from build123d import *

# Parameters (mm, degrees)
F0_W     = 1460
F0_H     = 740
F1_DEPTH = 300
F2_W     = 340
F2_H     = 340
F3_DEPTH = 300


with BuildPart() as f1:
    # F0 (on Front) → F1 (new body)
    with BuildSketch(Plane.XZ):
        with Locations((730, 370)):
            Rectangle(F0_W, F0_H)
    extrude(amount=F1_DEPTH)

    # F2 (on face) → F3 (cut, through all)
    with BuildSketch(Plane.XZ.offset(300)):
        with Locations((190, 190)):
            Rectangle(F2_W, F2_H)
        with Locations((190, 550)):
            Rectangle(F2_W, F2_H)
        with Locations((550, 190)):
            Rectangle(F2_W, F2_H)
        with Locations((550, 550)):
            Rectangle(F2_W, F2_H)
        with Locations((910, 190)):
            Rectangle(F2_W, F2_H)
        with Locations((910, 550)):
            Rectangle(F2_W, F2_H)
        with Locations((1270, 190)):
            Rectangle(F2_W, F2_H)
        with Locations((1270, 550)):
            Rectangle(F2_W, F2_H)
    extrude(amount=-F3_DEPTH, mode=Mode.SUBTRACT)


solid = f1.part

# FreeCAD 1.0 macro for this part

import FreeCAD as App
import Part
import Sketcher

V = App.Vector

doc = App.newDocument("Part")
body = doc.addObject("PartDesign::Body", "Body")

# Sketch on XZ plane
sketch1 = body.newObject("Sketcher::SketchObject", "Sketch")
sketch1.AttachmentSupport = (doc.getObject("XZ_Plane"), [""])
sketch1.MapMode = "FlatFace"
sketch1.addGeometry(Part.LineSegment(V(0, 740, 0), V(0, 0, 0)), False)
sketch1.addGeometry(Part.LineSegment(V(0, 0, 0), V(1460, 0, 0)), False)
sketch1.addGeometry(Part.LineSegment(V(1460, 0, 0), V(1460, 740, 0)), False)
sketch1.addGeometry(Part.LineSegment(V(1460, 740, 0), V(0, 740, 0)), False)
sketch1.addConstraint(Sketcher.Constraint("Coincident", 0, 2, 1, 1))
sketch1.addConstraint(Sketcher.Constraint("Coincident", 1, 2, 2, 1))
sketch1.addConstraint(Sketcher.Constraint("Coincident", 2, 2, 3, 1))
sketch1.addConstraint(Sketcher.Constraint("Coincident", 3, 2, 0, 1))
sketch1.addConstraint(Sketcher.Constraint("Vertical", 0))
sketch1.addConstraint(Sketcher.Constraint("Horizontal", 1))
sketch1.addConstraint(Sketcher.Constraint("Vertical", 2))
sketch1.addConstraint(Sketcher.Constraint("Horizontal", 3))
sketch1.addConstraint(Sketcher.Constraint("Coincident", 0, 2, -1, 1))
sketch1.addConstraint(Sketcher.Constraint("DistanceX", 1, 1, 1, 2, 1460.0))
sketch1.addConstraint(Sketcher.Constraint("DistanceY", 0, 2, 0, 1, 740.0))
pad1 = body.newObject("PartDesign::Pad", "Pad")
pad1.Profile = sketch1
pad1.Length = 300

# Sketch on XZ plane
sketch2 = body.newObject("Sketcher::SketchObject", "Sketch001")
sketch2.AttachmentSupport = (doc.getObject("XZ_Plane"), [""])
sketch2.MapMode = "FlatFace"
sketch2.AttachmentOffset = App.Placement(V(0, 0, 300), App.Rotation())
sketch2.addGeometry(Part.LineSegment(V(20, 360, 0), V(20, 20, 0)), False)
sketch2.addGeometry(Part.LineSegment(V(20, 20, 0), V(360, 20, 0)), False)
sketch2.addGeometry(Part.LineSegment(V(360, 20, 0), V(360, 360, 0)), False)
sketch2.addGeometry(Part.LineSegment(V(360, 360, 0), V(20, 360, 0)), False)
sketch2.addGeometry(Part.LineSegment(V(20, 720, 0), V(20, 380, 0)), False)
sketch2.addGeometry(Part.LineSegment(V(20, 380, 0), V(360, 380, 0)), False)
sketch2.addGeometry(Part.LineSegment(V(360, 380, 0), V(360, 720, 0)), False)
sketch2.addGeometry(Part.LineSegment(V(360, 720, 0), V(20, 720, 0)), False)
sketch2.addGeometry(Part.LineSegment(V(380, 360, 0), V(380, 20, 0)), False)
sketch2.addGeometry(Part.LineSegment(V(380, 20, 0), V(720, 20, 0)), False)
sketch2.addGeometry(Part.LineSegment(V(720, 20, 0), V(720, 360, 0)), False)
sketch2.addGeometry(Part.LineSegment(V(720, 360, 0), V(380, 360, 0)), False)
sketch2.addGeometry(Part.LineSegment(V(380, 720, 0), V(380, 380, 0)), False)
sketch2.addGeometry(Part.LineSegment(V(380, 380, 0), V(720, 380, 0)), False)
sketch2.addGeometry(Part.LineSegment(V(720, 380, 0), V(720, 720, 0)), False)
sketch2.addGeometry(Part.LineSegment(V(720, 720, 0), V(380, 720, 0)), False)
sketch2.addGeometry(Part.LineSegment(V(740, 360, 0), V(740, 20, 0)), False)
sketch2.addGeometry(Part.LineSegment(V(740, 20, 0), V(1080, 20, 0)), False)
sketch2.addGeometry(Part.LineSegment(V(1080, 20, 0), V(1080, 360, 0)), False)
sketch2.addGeometry(Part.LineSegment(V(1080, 360, 0), V(740, 360, 0)), False)
sketch2.addGeometry(Part.LineSegment(V(740, 720, 0), V(740, 380, 0)), False)
sketch2.addGeometry(Part.LineSegment(V(740, 380, 0), V(1080, 380, 0)), False)
sketch2.addGeometry(Part.LineSegment(V(1080, 380, 0), V(1080, 720, 0)), False)
sketch2.addGeometry(Part.LineSegment(V(1080, 720, 0), V(740, 720, 0)), False)
sketch2.addGeometry(Part.LineSegment(V(1100, 360, 0), V(1100, 20, 0)), False)
sketch2.addGeometry(Part.LineSegment(V(1100, 20, 0), V(1440, 20, 0)), False)
sketch2.addGeometry(Part.LineSegment(V(1440, 20, 0), V(1440, 360, 0)), False)
sketch2.addGeometry(Part.LineSegment(V(1440, 360, 0), V(1100, 360, 0)), False)
sketch2.addGeometry(Part.LineSegment(V(1100, 720, 0), V(1100, 380, 0)), False)
sketch2.addGeometry(Part.LineSegment(V(1100, 380, 0), V(1440, 380, 0)), False)
sketch2.addGeometry(Part.LineSegment(V(1440, 380, 0), V(1440, 720, 0)), False)
sketch2.addGeometry(Part.LineSegment(V(1440, 720, 0), V(1100, 720, 0)), False)
sketch2.addConstraint(Sketcher.Constraint("Coincident", 0, 2, 1, 1))
sketch2.addConstraint(Sketcher.Constraint("Coincident", 1, 2, 2, 1))
sketch2.addConstraint(Sketcher.Constraint("Coincident", 2, 2, 3, 1))
sketch2.addConstraint(Sketcher.Constraint("Coincident", 3, 2, 0, 1))
sketch2.addConstraint(Sketcher.Constraint("Coincident", 4, 2, 5, 1))
sketch2.addConstraint(Sketcher.Constraint("Coincident", 5, 2, 6, 1))
sketch2.addConstraint(Sketcher.Constraint("Coincident", 6, 2, 7, 1))
sketch2.addConstraint(Sketcher.Constraint("Coincident", 7, 2, 4, 1))
sketch2.addConstraint(Sketcher.Constraint("Coincident", 8, 2, 9, 1))
sketch2.addConstraint(Sketcher.Constraint("Coincident", 9, 2, 10, 1))
sketch2.addConstraint(Sketcher.Constraint("Coincident", 10, 2, 11, 1))
sketch2.addConstraint(Sketcher.Constraint("Coincident", 11, 2, 8, 1))
sketch2.addConstraint(Sketcher.Constraint("Coincident", 12, 2, 13, 1))
sketch2.addConstraint(Sketcher.Constraint("Coincident", 13, 2, 14, 1))
sketch2.addConstraint(Sketcher.Constraint("Coincident", 14, 2, 15, 1))
sketch2.addConstraint(Sketcher.Constraint("Coincident", 15, 2, 12, 1))
sketch2.addConstraint(Sketcher.Constraint("Coincident", 16, 2, 17, 1))
sketch2.addConstraint(Sketcher.Constraint("Coincident", 17, 2, 18, 1))
sketch2.addConstraint(Sketcher.Constraint("Coincident", 18, 2, 19, 1))
sketch2.addConstraint(Sketcher.Constraint("Coincident", 19, 2, 16, 1))
sketch2.addConstraint(Sketcher.Constraint("Coincident", 20, 2, 21, 1))
sketch2.addConstraint(Sketcher.Constraint("Coincident", 21, 2, 22, 1))
sketch2.addConstraint(Sketcher.Constraint("Coincident", 22, 2, 23, 1))
sketch2.addConstraint(Sketcher.Constraint("Coincident", 23, 2, 20, 1))
sketch2.addConstraint(Sketcher.Constraint("Coincident", 24, 2, 25, 1))
sketch2.addConstraint(Sketcher.Constraint("Coincident", 25, 2, 26, 1))
sketch2.addConstraint(Sketcher.Constraint("Coincident", 26, 2, 27, 1))
sketch2.addConstraint(Sketcher.Constraint("Coincident", 27, 2, 24, 1))
sketch2.addConstraint(Sketcher.Constraint("Coincident", 28, 2, 29, 1))
sketch2.addConstraint(Sketcher.Constraint("Coincident", 29, 2, 30, 1))
sketch2.addConstraint(Sketcher.Constraint("Coincident", 30, 2, 31, 1))
sketch2.addConstraint(Sketcher.Constraint("Coincident", 31, 2, 28, 1))
sketch2.addConstraint(Sketcher.Constraint("Vertical", 0))
sketch2.addConstraint(Sketcher.Constraint("Horizontal", 1))
sketch2.addConstraint(Sketcher.Constraint("Vertical", 2))
sketch2.addConstraint(Sketcher.Constraint("Horizontal", 3))
sketch2.addConstraint(Sketcher.Constraint("Vertical", 4))
sketch2.addConstraint(Sketcher.Constraint("Horizontal", 5))
sketch2.addConstraint(Sketcher.Constraint("Vertical", 6))
sketch2.addConstraint(Sketcher.Constraint("Horizontal", 7))
sketch2.addConstraint(Sketcher.Constraint("Vertical", 8))
sketch2.addConstraint(Sketcher.Constraint("Horizontal", 9))
sketch2.addConstraint(Sketcher.Constraint("Vertical", 10))
sketch2.addConstraint(Sketcher.Constraint("Horizontal", 11))
sketch2.addConstraint(Sketcher.Constraint("Vertical", 12))
sketch2.addConstraint(Sketcher.Constraint("Horizontal", 13))
sketch2.addConstraint(Sketcher.Constraint("Vertical", 14))
sketch2.addConstraint(Sketcher.Constraint("Horizontal", 15))
sketch2.addConstraint(Sketcher.Constraint("Vertical", 16))
sketch2.addConstraint(Sketcher.Constraint("Horizontal", 17))
sketch2.addConstraint(Sketcher.Constraint("Vertical", 18))
sketch2.addConstraint(Sketcher.Constraint("Horizontal", 19))
sketch2.addConstraint(Sketcher.Constraint("Vertical", 20))
sketch2.addConstraint(Sketcher.Constraint("Horizontal", 21))
sketch2.addConstraint(Sketcher.Constraint("Vertical", 22))
sketch2.addConstraint(Sketcher.Constraint("Horizontal", 23))
sketch2.addConstraint(Sketcher.Constraint("Vertical", 24))
sketch2.addConstraint(Sketcher.Constraint("Horizontal", 25))
sketch2.addConstraint(Sketcher.Constraint("Vertical", 26))
sketch2.addConstraint(Sketcher.Constraint("Horizontal", 27))
sketch2.addConstraint(Sketcher.Constraint("Vertical", 28))
sketch2.addConstraint(Sketcher.Constraint("Horizontal", 29))
sketch2.addConstraint(Sketcher.Constraint("Vertical", 30))
sketch2.addConstraint(Sketcher.Constraint("Horizontal", 31))
sketch2.addConstraint(Sketcher.Constraint("Horizontal", 1, 2, 8, 2))
sketch2.addConstraint(Sketcher.Constraint("Horizontal", 3, 2, 10, 2))
sketch2.addConstraint(Sketcher.Constraint("Horizontal", 5, 2, 12, 2))
sketch2.addConstraint(Sketcher.Constraint("Horizontal", 7, 2, 14, 2))
sketch2.addConstraint(Sketcher.Constraint("Horizontal", 9, 2, 16, 2))
sketch2.addConstraint(Sketcher.Constraint("Horizontal", 11, 2, 18, 2))
sketch2.addConstraint(Sketcher.Constraint("Horizontal", 13, 2, 20, 2))
sketch2.addConstraint(Sketcher.Constraint("Horizontal", 15, 2, 22, 2))
sketch2.addConstraint(Sketcher.Constraint("Horizontal", 17, 2, 24, 2))
sketch2.addConstraint(Sketcher.Constraint("Horizontal", 19, 2, 26, 2))
sketch2.addConstraint(Sketcher.Constraint("Horizontal", 21, 2, 28, 2))
sketch2.addConstraint(Sketcher.Constraint("Horizontal", 23, 2, 30, 2))
sketch2.addConstraint(Sketcher.Constraint("Vertical", 3, 2, 4, 2))
sketch2.addConstraint(Sketcher.Constraint("Vertical", 2, 2, 5, 2))
sketch2.addConstraint(Sketcher.Constraint("Vertical", 11, 2, 12, 2))
sketch2.addConstraint(Sketcher.Constraint("Vertical", 10, 2, 13, 2))
sketch2.addConstraint(Sketcher.Constraint("Vertical", 19, 2, 20, 2))
sketch2.addConstraint(Sketcher.Constraint("Vertical", 18, 2, 21, 2))
sketch2.addConstraint(Sketcher.Constraint("Vertical", 27, 2, 28, 2))
sketch2.addConstraint(Sketcher.Constraint("Vertical", 26, 2, 29, 2))
sketch2.addConstraint(Sketcher.Constraint("Equal", 7, 9))
sketch2.addConstraint(Sketcher.Constraint("Equal", 15, 17))
sketch2.addConstraint(Sketcher.Constraint("Equal", 23, 25))
sketch2.addConstraint(Sketcher.Constraint("Equal", 31, 0))
sketch2.addConstraint(Sketcher.Constraint("Equal", 2, 4))
sketch2.addConstraint(Sketcher.Constraint("DistanceX", 1, 1, 1, 2, 340.0))
sketch2.addConstraint(Sketcher.Constraint("DistanceX", -1, 1, 0, 2, 20.0))
sketch2.addConstraint(Sketcher.Constraint("DistanceY", -1, 1, 0, 2, 20.0))
sketch2.addConstraint(Sketcher.Constraint("DistanceY", -1, 1, 4, 2, 380.0))
sketch2.addConstraint(Sketcher.Constraint("DistanceX", -1, 1, 8, 2, 380.0))
sketch2.addConstraint(Sketcher.Constraint("DistanceX", -1, 1, 16, 2, 740.0))
sketch2.addConstraint(Sketcher.Constraint("DistanceX", -1, 1, 24, 2, 1100.0))
pocket1 = body.newObject("PartDesign::Pocket", "Pocket")
pocket1.Profile = sketch2
pocket1.Type = "ThroughAll"

doc.recompute()
